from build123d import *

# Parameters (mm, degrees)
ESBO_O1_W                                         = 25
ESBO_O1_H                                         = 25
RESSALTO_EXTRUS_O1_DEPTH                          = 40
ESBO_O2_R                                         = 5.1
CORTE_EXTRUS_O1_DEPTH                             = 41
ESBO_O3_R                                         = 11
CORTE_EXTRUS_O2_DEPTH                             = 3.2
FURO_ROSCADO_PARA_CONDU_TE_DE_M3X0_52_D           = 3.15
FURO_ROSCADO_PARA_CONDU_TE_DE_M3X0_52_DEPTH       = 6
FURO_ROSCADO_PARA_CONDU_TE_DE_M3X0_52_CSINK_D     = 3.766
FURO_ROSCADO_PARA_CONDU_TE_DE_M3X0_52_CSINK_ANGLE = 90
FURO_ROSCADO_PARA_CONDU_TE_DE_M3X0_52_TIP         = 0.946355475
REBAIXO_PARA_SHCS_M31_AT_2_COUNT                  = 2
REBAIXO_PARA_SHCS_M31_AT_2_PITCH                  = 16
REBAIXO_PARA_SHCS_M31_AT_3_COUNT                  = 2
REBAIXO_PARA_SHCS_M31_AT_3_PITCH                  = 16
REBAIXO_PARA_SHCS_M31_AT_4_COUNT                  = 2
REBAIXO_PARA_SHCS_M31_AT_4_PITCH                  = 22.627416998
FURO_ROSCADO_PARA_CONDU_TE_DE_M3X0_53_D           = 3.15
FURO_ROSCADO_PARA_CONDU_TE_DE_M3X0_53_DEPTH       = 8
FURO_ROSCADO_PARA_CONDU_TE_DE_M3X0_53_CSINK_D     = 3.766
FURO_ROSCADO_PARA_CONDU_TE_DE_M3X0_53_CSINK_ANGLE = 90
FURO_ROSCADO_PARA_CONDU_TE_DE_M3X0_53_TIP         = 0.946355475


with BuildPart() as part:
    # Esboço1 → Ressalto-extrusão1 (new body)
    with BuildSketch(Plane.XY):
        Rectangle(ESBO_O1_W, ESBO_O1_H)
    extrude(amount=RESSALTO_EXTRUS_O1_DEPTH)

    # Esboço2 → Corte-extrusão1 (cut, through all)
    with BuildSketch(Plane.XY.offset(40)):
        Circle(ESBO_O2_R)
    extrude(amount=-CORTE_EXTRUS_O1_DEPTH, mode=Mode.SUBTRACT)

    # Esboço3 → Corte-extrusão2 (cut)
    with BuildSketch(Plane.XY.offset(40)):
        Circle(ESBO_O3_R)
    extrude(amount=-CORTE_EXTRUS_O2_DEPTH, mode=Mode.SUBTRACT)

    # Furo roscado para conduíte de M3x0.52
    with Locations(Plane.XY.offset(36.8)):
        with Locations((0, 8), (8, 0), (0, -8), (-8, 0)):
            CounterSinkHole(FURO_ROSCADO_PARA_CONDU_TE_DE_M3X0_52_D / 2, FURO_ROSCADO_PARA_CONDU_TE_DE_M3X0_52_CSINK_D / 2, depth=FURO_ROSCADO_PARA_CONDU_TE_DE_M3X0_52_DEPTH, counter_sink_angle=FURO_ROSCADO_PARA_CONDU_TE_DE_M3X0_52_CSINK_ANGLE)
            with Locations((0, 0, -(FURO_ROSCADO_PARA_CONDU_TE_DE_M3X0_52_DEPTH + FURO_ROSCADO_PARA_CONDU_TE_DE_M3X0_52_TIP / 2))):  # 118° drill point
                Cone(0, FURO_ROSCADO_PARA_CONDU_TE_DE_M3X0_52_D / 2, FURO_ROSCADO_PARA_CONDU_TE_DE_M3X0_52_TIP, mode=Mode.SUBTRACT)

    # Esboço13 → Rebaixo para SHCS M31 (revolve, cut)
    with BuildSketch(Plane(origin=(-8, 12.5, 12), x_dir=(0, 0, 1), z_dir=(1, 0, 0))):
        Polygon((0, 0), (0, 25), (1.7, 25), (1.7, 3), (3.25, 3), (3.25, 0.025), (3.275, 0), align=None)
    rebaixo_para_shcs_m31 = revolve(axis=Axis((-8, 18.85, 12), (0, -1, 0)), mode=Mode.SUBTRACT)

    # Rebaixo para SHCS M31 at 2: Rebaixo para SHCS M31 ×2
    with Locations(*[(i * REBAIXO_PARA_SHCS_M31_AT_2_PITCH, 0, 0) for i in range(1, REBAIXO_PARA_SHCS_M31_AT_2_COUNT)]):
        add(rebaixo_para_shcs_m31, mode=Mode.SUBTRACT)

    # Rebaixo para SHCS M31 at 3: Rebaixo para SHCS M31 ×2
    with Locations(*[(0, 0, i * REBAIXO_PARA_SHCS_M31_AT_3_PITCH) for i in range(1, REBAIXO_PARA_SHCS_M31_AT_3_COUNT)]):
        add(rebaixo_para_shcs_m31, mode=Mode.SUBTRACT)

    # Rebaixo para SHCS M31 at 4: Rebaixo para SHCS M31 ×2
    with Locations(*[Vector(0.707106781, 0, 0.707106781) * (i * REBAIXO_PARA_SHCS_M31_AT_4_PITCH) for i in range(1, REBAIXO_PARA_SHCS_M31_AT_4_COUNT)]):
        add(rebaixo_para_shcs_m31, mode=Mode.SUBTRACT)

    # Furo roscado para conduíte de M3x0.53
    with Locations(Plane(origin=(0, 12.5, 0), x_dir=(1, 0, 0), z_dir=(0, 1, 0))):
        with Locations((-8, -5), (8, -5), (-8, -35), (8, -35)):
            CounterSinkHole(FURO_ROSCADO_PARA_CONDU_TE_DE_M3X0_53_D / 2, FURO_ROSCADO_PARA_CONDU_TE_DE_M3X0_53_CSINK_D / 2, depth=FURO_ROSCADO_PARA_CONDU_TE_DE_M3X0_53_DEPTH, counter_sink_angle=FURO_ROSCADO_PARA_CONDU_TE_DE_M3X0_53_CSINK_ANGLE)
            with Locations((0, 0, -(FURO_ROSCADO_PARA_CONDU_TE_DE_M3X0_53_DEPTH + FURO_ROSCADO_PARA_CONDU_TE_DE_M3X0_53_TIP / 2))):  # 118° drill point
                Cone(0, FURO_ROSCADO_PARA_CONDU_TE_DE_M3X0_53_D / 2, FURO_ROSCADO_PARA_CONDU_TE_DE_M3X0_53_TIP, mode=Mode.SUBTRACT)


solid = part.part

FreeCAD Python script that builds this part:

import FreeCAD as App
import Part
import Sketcher
Q = App.Units.Quantity

doc = App.newDocument("Part")
body = doc.addObject("PartDesign::Body", "Body")

# Sketch on XY plane
sketch1 = body.newObject("Sketcher::SketchObject", "Sketch")
sketch1.AttachmentSupport = (doc.getObject("XY_Plane"), [""])
sketch1.MapMode = "FlatFace"
sketch1.addGeometry(Part.LineSegment(App.Vector(-12, 12, 0), App.Vector(-12, -12, 0)), False)
sketch1.addGeometry(Part.LineSegment(App.Vector(-12, -12, 0), App.Vector(12, -12, 0)), False)
sketch1.addGeometry(Part.LineSegment(App.Vector(12, -12, 0), App.Vector(12, 12, 0)), False)
sketch1.addGeometry(Part.LineSegment(App.Vector(12, 12, 0), App.Vector(-12, 12, 0)), False)
sketch1.addConstraint(Sketcher.Constraint("Coincident", 0, 2, 1, 1))
sketch1.addConstraint(Sketcher.Constraint("Coincident", 1, 2, 2, 1))
sketch1.addConstraint(Sketcher.Constraint("Coincident", 2, 2, 3, 1))
sketch1.addConstraint(Sketcher.Constraint("Coincident", 3, 2, 0, 1))
sketch1.addConstraint(Sketcher.Constraint("Vertical", 0))
sketch1.addConstraint(Sketcher.Constraint("Horizontal", 1))
sketch1.addConstraint(Sketcher.Constraint("Vertical", 2))
sketch1.addConstraint(Sketcher.Constraint("Horizontal", 3))
sketch1.addConstraint(Sketcher.Constraint("Symmetric", 0, 2, 2, 2, -1, 1))
sketch1.addConstraint(Sketcher.Constraint("Equal", 3, 0))
sketch1.addConstraint(Sketcher.Constraint("DistanceX", 1, 1, 1, 2, 25.0))
pad1 = body.newObject("PartDesign::Pad", "Pad")
pad1.Profile = sketch1
pad1.Length = 40

# Sketch on XY plane
sketch2 = body.newObject("Sketcher::SketchObject", "Sketch001")
sketch2.AttachmentSupport = (doc.getObject("XY_Plane"), [""])
sketch2.MapMode = "FlatFace"
sketch2.AttachmentOffset = App.Placement(App.Vector(0, 0, 40), App.Rotation())
sketch2.addGeometry(Part.Circle(App.Vector(0, 0, 0), App.Vector(0, 0, 1), 5), False)
sketch2.addConstraint(Sketcher.Constraint("Coincident", 0, 3, -1, 1))
sketch2.addConstraint(Sketcher.Constraint("Diameter", 0, 10.2))
pocket1 = body.newObject("PartDesign::Pocket", "Pocket")
pocket1.Profile = sketch2
pocket1.Type = "ThroughAll"

# Sketch on XY plane
sketch3 = body.newObject("Sketcher::SketchObject", "Sketch002")
sketch3.AttachmentSupport = (doc.getObject("XY_Plane"), [""])
sketch3.MapMode = "FlatFace"
sketch3.AttachmentOffset = App.Placement(App.Vector(0, 0, 40), App.Rotation())
sketch3.addGeometry(Part.Circle(App.Vector(0, 0, 0), App.Vector(0, 0, 1), 11), False)
sketch3.addConstraint(Sketcher.Constraint("Coincident", 0, 3, -1, 1))
sketch3.addConstraint(Sketcher.Constraint("Diameter", 0, 22.0))
pocket2 = body.newObject("PartDesign::Pocket", "Pocket001")
pocket2.Profile = sketch3
pocket2.Length = 3.2

# Sketch on XY plane
sketch4 = body.newObject("Sketcher::SketchObject", "Sketch003")
sketch4.AttachmentSupport = (doc.getObject("XY_Plane"), [""])
sketch4.MapMode = "FlatFace"
sketch4.AttachmentOffset = App.Placement(App.Vector(0, 0, 36.8), App.Rotation())
sketch4.addGeometry(Part.Circle(App.Vector(0, 8, 0), App.Vector(0, 0, 1), 1.6), False)
sketch4.addGeometry(Part.Circle(App.Vector(8, 0, 0), App.Vector(0, 0, 1), 1.6), False)
sketch4.addGeometry(Part.Circle(App.Vector(0, -8, 0), App.Vector(0, 0, 1), 1.6), False)
sketch4.addGeometry(Part.Circle(App.Vector(-8, 0, 0), App.Vector(0, 0, 1), 1.6), False)
sketch4.addConstraint(Sketcher.Constraint("Equal", 0, 1))
sketch4.addConstraint(Sketcher.Constraint("Equal", 1, 2))
sketch4.addConstraint(Sketcher.Constraint("Equal", 2, 3))
sketch4.addConstraint(Sketcher.Constraint("Symmetric", 0, 3, 2, 3, -1, 1))
sketch4.addConstraint(Sketcher.Constraint("Symmetric", 1, 3, 3, 3, -1, 1))
sketch4.addConstraint(Sketcher.Constraint("PointOnObject", 0, 3, -2))
sketch4.addConstraint(Sketcher.Constraint("PointOnObject", 1, 3, -1))
sketch4.addConstraint(Sketcher.Constraint("Diameter", 0, 3.15))
sketch4.addConstraint(Sketcher.Constraint("DistanceY", -1, 1, 0, 3, 8.0))
sketch4.addConstraint(Sketcher.Constraint("DistanceX", -1, 1, 1, 3, 8.0))
doc.recompute()
hole = body.newObject("PartDesign::Hole", "Hole")
hole.Profile = sketch4
hole.ThreadType = "None"
hole.Diameter = 3.15
hole.DepthType = "Dimension"
hole.Depth = 6
hole.DrillPoint = "Angled"
hole.DrillPointAngle = 118
hole.HoleCutType = "Countersink"
hole.HoleCutDiameter = 3.766
hole.HoleCutCountersinkAngle = 90

# Sketch on YZ plane
sketch5 = body.newObject("Sketcher::SketchObject", "Sketch004")
sketch5.AttachmentSupport = (doc.getObject("YZ_Plane"), [""])
sketch5.MapMode = "FlatFace"
sketch5.AttachmentOffset = App.Placement(App.Vector(0, 0, -8), App.Rotation())
sketch5.addGeometry(Part.LineSegment(App.Vector(-12.5, 12, 0), App.Vector(12.5, 12, 0)), False)
sketch5.addGeometry(Part.LineSegment(App.Vector(12.5, 12, 0), App.Vector(12.5, 15.275, 0)), False)
sketch5.addGeometry(Part.LineSegment(App.Vector(12.5, 15.275, 0), App.Vector(12.475, 15.25, 0)), False)
sketch5.addGeometry(Part.LineSegment(App.Vector(12.475, 15.25, 0), App.Vector(9.5, 15.25, 0)), False)
sketch5.addGeometry(Part.LineSegment(App.Vector(9.5, 15.25, 0), App.Vector(9.5, 13.7, 0)), False)
sketch5.addGeometry(Part.LineSegment(App.Vector(9.5, 13.7, 0), App.Vector(-12.5, 13.7, 0)), False)
sketch5.addGeometry(Part.LineSegment(App.Vector(-12.5, 13.7, 0), App.Vector(-12.5, 12, 0)), False)
sketch5.addGeometry(Part.LineSegment(App.Vector(12.5, 12, 0), App.Vector(-12.5, 12, 0)), True)  # axis
sketch5.addConstraint(Sketcher.Constraint("Coincident", 0, 2, 1, 1))
sketch5.addConstraint(Sketcher.Constraint("Coincident", 1, 2, 2, 1))
sketch5.addConstraint(Sketcher.Constraint("Coincident", 2, 2, 3, 1))
sketch5.addConstraint(Sketcher.Constraint("Coincident", 3, 2, 4, 1))
sketch5.addConstraint(Sketcher.Constraint("Coincident", 4, 2, 5, 1))
sketch5.addConstraint(Sketcher.Constraint("Coincident", 5, 2, 6, 1))
sketch5.addConstraint(Sketcher.Constraint("Coincident", 6, 2, 0, 1))
sketch5.addConstraint(Sketcher.Constraint("Horizontal", 0))
sketch5.addConstraint(Sketcher.Constraint("Vertical", 1))
sketch5.addConstraint(Sketcher.Constraint("Horizontal", 3))
sketch5.addConstraint(Sketcher.Constraint("Vertical", 4))
sketch5.addConstraint(Sketcher.Constraint("Horizontal", 5))
sketch5.addConstraint(Sketcher.Constraint("Vertical", 6))
sketch5.addConstraint(Sketcher.Constraint("Horizontal", 7))
sketch5.addConstraint(Sketcher.Constraint("Coincident", 7, 1, 0, 2))
sketch5.addConstraint(Sketcher.Constraint("Vertical", 5, 2, 7, 2))
sketch5.addConstraint(Sketcher.Constraint("DistanceX", 0, 1, 0, 2, 25.0))
sketch5.addConstraint(Sketcher.Constraint("DistanceX", 5, 2, 5, 1, 22.0))
sketch5.addConstraint(Sketcher.Constraint("Angle", 2, Q("-135 deg")))
sketch5.addConstraint(Sketcher.Constraint("DistanceY", 6, 2, 6, 1, 1.7))
sketch5.addConstraint(Sketcher.Constraint("DistanceY", -1, 1, 0, 2, 12.0))
sketch5.addConstraint(Sketcher.Constraint("DistanceY", 4, 2, 4, 1, 1.55))
sketch5.addConstraint(Sketcher.Constraint("DistanceX", -1, 1, 0, 2, 12.5))
sketch5.addConstraint(Sketcher.Constraint("DistanceX", 3, 2, 3, 1, 2.975))
groove = body.newObject("PartDesign::Groove", "Groove")
groove.Profile = sketch5
groove.ReferenceAxis = (sketch5, ["Axis0"])
groove.Angle = 360
doc.recompute()

linearpattern = body.newObject("PartDesign::LinearPattern", "LinearPattern")
linearpattern.Originals = [groove]
linearpattern.Direction = (doc.getObject("X_Axis"), [""])
linearpattern.Mode = "offset"
linearpattern.Offset = 16
linearpattern.Occurrences = 2
body.Tip = linearpattern
doc.recompute()

linearpattern2 = body.newObject("PartDesign::LinearPattern", "LinearPattern001")
linearpattern2.Originals = [groove]
linearpattern2.Direction = (doc.getObject("Z_Axis"), [""])
linearpattern2.Mode = "offset"
linearpattern2.Offset = 16
linearpattern2.Occurrences = 2
body.Tip = linearpattern2
doc.recompute()

datumline = body.newObject("PartDesign::Line", "DatumLine")
datumline.Placement = App.Placement(App.Vector(0, 0, 0), App.Rotation(App.Vector(0, 0, 1), App.Vector(0.707106781, 0, 0.707106781)))
linearpattern3 = body.newObject("PartDesign::LinearPattern", "LinearPattern002")
linearpattern3.Originals = [groove]
linearpattern3.Direction = (datumline, [""])
linearpattern3.Mode = "offset"
linearpattern3.Offset = 22.627417
linearpattern3.Occurrences = 2
body.Tip = linearpattern3

# Sketch on XZ plane
sketch6 = body.newObject("Sketcher::SketchObject", "Sketch005")
sketch6.AttachmentSupport = (doc.getObject("XZ_Plane"), [""])
sketch6.MapMode = "FlatFace"
sketch6.AttachmentOffset = App.Placement(App.Vector(0, 0, -12.5), App.Rotation())
sketch6.addGeometry(Part.Circle(App.Vector(-8, 5, 0), App.Vector(0, 0, 1), 1.6), False)
sketch6.addGeometry(Part.Circle(App.Vector(8, 5, 0), App.Vector(0, 0, 1), 1.6), False)
sketch6.addGeometry(Part.Circle(App.Vector(-8, 35, 0), App.Vector(0, 0, 1), 1.6), False)
sketch6.addGeometry(Part.Circle(App.Vector(8, 35, 0), App.Vector(0, 0, 1), 1.6), False)
sketch6.addConstraint(Sketcher.Constraint("Equal", 0, 1))
sketch6.addConstraint(Sketcher.Constraint("Equal", 1, 2))
sketch6.addConstraint(Sketcher.Constraint("Equal", 2, 3))
sketch6.addConstraint(Sketcher.Constraint("Symmetric", 0, 3, 1, 3, -2))
sketch6.addConstraint(Sketcher.Constraint("Symmetric", 2, 3, 3, 3, -2))
sketch6.addConstraint(Sketcher.Constraint("Vertical", 0, 3, 2, 3))
sketch6.addConstraint(Sketcher.Constraint("Diameter", 0, 3.15))
sketch6.addConstraint(Sketcher.Constraint("DistanceX", 0, 3, -1, 1, 8.0))
sketch6.addConstraint(Sketcher.Constraint("DistanceY", -1, 1, 0, 3, 5.0))
sketch6.addConstraint(Sketcher.Constraint("DistanceY", -1, 1, 2, 3, 35.0))
doc.recompute()
hole2 = body.newObject("PartDesign::Hole", "Hole001")
hole2.Profile = sketch6
hole2.ThreadType = "None"
hole2.Diameter = 3.15
hole2.DepthType = "Dimension"
hole2.Depth = 8
hole2.DrillPoint = "Angled"
hole2.DrillPointAngle = 118
hole2.HoleCutType = "Countersink"
hole2.HoleCutDiameter = 3.766
hole2.HoleCutCountersinkAngle = 90
hole2.Reversed = True

doc.recompute()
